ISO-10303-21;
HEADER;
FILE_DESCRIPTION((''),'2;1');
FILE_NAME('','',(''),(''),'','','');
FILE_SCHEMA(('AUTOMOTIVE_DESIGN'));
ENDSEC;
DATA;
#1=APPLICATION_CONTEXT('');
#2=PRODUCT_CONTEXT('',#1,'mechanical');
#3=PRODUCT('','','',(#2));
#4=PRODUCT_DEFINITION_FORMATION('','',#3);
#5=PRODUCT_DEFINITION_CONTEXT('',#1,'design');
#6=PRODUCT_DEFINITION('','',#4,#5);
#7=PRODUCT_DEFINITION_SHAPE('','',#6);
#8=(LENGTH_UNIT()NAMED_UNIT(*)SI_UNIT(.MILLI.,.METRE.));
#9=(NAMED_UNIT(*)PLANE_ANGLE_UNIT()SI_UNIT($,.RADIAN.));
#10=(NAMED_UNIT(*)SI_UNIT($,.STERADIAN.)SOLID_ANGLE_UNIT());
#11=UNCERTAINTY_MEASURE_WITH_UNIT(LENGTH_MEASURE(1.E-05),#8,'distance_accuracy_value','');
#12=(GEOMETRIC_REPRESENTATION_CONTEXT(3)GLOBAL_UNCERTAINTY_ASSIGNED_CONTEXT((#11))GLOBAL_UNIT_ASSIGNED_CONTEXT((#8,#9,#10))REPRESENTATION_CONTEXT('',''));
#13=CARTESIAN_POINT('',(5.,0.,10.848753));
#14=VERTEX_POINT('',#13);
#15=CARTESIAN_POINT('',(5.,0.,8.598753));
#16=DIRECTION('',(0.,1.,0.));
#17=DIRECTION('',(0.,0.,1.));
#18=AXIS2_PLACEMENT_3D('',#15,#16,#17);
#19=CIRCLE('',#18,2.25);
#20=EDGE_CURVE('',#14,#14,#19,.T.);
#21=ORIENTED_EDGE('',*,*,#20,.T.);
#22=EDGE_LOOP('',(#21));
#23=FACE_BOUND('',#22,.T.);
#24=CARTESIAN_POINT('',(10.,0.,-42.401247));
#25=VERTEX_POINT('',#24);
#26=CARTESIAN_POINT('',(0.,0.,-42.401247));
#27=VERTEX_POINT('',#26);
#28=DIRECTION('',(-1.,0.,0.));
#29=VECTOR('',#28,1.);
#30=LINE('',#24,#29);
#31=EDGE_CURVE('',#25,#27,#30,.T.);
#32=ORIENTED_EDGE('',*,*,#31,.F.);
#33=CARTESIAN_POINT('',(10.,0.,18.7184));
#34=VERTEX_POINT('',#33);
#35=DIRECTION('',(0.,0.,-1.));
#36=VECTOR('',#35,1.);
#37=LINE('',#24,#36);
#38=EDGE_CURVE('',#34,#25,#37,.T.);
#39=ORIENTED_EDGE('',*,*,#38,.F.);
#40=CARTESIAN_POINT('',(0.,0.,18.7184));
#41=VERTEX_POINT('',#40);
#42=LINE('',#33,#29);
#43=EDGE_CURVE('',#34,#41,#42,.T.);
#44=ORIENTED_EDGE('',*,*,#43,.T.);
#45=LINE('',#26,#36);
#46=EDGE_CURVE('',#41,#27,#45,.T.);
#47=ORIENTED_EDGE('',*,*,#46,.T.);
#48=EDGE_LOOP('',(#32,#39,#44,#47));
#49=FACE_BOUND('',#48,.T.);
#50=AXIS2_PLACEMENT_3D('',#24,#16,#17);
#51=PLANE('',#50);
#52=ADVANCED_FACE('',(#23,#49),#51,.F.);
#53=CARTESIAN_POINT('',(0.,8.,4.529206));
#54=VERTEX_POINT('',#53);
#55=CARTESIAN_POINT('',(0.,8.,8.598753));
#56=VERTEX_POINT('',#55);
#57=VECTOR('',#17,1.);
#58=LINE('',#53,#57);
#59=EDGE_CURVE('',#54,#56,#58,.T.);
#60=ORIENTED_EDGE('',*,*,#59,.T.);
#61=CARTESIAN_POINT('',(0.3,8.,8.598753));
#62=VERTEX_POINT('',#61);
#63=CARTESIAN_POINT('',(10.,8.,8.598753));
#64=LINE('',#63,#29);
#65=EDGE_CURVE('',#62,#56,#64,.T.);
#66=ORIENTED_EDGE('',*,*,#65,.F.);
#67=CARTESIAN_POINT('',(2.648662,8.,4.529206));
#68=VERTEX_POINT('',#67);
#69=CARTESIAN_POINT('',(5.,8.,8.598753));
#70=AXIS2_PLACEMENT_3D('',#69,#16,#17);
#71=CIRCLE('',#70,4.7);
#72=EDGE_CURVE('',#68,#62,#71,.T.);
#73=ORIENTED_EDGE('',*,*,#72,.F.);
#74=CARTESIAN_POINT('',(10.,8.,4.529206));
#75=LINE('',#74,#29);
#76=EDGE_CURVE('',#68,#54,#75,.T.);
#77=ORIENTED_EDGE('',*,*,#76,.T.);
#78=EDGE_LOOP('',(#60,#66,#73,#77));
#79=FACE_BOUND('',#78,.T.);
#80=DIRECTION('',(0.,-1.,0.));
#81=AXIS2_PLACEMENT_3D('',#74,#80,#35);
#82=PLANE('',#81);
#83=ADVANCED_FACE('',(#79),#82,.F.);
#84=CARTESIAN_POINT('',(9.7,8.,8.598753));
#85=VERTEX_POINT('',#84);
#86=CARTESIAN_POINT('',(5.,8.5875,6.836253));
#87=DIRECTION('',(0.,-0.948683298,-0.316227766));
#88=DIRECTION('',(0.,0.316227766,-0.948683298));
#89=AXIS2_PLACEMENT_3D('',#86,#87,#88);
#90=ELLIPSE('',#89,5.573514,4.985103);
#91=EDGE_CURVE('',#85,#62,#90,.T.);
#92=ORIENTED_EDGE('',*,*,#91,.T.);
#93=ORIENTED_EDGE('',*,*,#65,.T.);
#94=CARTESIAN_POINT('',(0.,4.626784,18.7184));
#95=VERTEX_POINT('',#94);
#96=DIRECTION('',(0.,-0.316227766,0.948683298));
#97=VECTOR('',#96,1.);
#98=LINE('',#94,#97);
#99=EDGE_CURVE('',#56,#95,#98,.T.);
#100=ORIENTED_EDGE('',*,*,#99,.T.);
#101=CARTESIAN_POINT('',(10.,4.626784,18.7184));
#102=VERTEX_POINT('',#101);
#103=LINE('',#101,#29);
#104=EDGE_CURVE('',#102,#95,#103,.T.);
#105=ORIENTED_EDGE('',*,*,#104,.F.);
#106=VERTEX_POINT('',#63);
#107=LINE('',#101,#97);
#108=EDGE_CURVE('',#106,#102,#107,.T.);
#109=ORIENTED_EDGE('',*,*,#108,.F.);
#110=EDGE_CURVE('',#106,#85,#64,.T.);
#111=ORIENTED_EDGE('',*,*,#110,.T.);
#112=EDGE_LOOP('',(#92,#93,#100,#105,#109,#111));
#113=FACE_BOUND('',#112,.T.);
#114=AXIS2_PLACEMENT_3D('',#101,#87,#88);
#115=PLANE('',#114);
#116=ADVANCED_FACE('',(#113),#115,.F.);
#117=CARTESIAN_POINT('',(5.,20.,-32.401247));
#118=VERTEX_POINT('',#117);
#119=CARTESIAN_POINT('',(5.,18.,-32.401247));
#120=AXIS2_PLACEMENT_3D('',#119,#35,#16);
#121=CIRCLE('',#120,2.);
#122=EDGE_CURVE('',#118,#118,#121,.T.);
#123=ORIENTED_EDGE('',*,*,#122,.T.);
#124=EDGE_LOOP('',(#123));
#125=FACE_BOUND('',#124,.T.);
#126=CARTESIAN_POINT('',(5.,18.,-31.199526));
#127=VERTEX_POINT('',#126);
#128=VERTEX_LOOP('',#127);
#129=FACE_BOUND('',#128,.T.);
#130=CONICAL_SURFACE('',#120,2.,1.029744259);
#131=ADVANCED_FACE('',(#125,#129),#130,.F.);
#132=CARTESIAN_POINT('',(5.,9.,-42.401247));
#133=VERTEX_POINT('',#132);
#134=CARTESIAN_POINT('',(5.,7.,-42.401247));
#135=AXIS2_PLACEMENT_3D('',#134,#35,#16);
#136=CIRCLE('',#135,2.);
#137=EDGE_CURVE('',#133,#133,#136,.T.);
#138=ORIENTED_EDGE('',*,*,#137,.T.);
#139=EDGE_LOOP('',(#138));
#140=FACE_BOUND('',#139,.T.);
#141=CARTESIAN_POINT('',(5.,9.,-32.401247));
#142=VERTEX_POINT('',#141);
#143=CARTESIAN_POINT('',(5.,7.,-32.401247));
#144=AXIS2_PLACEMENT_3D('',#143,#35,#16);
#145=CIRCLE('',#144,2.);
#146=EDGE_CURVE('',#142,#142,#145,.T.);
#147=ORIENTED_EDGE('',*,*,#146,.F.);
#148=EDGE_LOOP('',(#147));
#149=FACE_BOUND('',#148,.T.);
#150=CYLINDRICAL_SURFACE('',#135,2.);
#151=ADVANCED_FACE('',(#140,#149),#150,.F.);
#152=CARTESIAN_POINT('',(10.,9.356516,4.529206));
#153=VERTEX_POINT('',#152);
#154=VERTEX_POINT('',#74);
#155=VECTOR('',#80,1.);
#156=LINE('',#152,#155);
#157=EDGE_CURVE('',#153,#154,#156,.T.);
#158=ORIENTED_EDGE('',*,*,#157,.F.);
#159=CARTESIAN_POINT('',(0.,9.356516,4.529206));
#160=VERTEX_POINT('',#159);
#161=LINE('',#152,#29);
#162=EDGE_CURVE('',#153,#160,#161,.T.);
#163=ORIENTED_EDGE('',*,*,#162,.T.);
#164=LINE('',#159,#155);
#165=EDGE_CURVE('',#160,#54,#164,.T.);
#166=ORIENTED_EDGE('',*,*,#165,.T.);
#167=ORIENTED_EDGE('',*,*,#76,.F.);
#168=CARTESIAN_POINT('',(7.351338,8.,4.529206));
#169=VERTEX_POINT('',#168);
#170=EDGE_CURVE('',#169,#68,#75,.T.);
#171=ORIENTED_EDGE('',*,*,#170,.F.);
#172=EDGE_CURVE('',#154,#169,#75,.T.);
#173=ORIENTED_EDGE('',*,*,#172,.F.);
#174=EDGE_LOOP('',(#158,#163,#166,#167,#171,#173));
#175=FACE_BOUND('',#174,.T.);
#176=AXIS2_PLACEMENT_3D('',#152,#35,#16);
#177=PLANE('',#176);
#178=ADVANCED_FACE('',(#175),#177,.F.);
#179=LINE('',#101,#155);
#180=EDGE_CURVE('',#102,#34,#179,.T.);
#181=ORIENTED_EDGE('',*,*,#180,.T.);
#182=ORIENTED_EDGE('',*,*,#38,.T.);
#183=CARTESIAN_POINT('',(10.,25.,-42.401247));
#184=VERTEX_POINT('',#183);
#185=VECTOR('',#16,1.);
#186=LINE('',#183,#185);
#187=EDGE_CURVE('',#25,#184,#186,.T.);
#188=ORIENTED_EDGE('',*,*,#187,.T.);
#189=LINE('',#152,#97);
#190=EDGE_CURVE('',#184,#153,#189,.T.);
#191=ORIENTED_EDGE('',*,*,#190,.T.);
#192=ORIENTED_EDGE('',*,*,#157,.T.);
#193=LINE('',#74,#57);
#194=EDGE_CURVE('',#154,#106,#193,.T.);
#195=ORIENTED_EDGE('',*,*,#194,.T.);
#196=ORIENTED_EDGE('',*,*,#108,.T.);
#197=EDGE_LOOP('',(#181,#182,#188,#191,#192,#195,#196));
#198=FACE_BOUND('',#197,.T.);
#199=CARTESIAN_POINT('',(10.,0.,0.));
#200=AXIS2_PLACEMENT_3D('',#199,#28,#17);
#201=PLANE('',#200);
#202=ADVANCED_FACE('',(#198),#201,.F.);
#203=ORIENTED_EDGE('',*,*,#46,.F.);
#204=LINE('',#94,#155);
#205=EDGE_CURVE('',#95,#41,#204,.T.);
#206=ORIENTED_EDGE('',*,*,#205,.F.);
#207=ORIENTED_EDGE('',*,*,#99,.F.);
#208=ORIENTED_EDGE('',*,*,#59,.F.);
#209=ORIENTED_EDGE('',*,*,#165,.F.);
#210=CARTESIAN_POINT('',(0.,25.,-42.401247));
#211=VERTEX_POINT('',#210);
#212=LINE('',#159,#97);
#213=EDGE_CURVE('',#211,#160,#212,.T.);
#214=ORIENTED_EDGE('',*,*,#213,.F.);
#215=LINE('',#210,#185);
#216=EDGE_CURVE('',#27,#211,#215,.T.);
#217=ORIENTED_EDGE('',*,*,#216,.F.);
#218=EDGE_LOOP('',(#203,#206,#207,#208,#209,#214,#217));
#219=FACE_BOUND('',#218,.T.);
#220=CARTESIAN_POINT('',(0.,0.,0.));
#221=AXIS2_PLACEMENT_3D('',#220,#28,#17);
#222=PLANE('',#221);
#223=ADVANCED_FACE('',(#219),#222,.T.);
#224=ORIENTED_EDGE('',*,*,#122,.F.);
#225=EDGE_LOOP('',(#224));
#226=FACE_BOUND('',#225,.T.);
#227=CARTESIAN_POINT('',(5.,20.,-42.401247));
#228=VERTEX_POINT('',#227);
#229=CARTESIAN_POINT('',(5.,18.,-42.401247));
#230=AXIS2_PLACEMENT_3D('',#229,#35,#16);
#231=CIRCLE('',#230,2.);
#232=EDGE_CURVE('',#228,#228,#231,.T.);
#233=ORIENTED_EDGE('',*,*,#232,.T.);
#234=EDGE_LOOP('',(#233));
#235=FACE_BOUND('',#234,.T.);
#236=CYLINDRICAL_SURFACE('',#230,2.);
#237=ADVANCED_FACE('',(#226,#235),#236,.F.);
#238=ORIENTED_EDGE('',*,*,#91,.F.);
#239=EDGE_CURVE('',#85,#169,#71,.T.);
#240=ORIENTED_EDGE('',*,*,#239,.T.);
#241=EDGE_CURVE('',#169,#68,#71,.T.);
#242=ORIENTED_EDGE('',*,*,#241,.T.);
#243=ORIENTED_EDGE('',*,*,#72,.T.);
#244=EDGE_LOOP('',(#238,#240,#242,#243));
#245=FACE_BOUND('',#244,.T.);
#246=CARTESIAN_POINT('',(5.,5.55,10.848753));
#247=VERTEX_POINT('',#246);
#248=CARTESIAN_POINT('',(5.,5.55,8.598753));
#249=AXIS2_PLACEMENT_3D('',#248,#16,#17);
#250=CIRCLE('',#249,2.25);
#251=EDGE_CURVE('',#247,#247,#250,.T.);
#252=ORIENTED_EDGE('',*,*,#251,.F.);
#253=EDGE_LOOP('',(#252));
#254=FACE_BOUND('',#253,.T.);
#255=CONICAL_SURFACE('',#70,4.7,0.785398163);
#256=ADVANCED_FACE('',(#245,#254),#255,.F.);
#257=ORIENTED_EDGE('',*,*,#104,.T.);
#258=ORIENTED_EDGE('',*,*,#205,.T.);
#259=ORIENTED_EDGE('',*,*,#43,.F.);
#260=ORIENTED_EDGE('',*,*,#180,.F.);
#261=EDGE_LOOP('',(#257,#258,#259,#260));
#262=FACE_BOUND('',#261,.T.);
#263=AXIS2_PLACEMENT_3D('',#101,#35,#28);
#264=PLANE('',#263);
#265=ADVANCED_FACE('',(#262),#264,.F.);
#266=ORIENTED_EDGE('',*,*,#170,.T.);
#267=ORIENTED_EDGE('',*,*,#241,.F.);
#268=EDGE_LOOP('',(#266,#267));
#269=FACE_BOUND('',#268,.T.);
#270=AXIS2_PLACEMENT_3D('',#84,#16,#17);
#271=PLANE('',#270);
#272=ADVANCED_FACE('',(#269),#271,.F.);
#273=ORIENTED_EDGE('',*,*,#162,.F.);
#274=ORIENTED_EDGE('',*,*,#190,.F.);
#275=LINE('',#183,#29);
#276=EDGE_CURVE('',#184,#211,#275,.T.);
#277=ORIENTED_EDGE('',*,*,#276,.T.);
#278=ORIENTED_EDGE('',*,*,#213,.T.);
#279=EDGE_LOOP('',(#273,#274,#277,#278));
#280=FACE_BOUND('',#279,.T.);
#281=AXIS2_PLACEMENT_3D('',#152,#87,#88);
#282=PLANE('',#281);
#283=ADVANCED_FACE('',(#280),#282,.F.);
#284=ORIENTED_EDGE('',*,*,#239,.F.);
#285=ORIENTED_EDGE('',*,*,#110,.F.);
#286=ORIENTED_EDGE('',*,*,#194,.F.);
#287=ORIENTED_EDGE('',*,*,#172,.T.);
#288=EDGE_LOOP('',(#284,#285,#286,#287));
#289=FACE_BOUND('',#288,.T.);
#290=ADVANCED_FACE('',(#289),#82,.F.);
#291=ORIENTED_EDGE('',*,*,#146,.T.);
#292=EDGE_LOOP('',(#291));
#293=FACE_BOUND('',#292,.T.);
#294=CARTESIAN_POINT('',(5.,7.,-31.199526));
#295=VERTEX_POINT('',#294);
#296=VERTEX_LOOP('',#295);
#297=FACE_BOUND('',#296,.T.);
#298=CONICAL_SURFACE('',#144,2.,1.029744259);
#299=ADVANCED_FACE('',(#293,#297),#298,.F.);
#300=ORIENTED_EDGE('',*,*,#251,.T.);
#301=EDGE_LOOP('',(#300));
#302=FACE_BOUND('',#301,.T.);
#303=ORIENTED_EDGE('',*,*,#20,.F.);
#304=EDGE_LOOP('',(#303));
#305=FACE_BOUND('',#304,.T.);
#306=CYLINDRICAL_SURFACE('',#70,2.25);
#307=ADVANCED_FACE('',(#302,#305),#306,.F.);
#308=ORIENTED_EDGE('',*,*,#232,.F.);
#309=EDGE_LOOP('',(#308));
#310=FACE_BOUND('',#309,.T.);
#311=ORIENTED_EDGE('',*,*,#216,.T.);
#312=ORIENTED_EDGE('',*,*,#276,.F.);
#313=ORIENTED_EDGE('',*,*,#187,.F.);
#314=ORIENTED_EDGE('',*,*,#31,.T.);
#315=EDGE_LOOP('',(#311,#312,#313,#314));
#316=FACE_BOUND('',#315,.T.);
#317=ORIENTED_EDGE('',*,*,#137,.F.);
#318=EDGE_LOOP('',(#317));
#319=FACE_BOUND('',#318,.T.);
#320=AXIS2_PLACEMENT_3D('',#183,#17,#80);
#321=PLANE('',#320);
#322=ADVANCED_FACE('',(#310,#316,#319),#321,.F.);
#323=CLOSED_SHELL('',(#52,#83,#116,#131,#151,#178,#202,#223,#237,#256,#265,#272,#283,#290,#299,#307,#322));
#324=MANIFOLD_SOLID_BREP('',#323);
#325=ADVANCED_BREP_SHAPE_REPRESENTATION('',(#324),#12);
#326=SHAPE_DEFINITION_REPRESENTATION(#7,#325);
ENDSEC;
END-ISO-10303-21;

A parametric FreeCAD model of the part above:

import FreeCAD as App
import Part
import Sketcher
Q = App.Units.Quantity

doc = App.newDocument("Part")
body = doc.addObject("PartDesign::Body", "Body")

sketch1 = doc.addObject("Sketcher::SketchObject", "Sketch")
body.addObject(sketch1)
sketch1.AttachmentSupport = (doc.YZ_Plane, [""])
sketch1.MapMode = "FlatFace"
sketch1.addGeometry(Part.LineSegment(App.Vector(8, 8.6, 0), App.Vector(4.6, 18.7, 0)), False)
sketch1.addGeometry(Part.LineSegment(App.Vector(4.6, 18.7, 0), App.Vector(0, 18.7, 0)), False)
sketch1.addGeometry(Part.LineSegment(App.Vector(0, 18.7, 0), App.Vector(0, -42.4, 0)), False)
sketch1.addGeometry(Part.LineSegment(App.Vector(0, -42.4, 0), App.Vector(25, -42.4, 0)), False)
sketch1.addGeometry(Part.LineSegment(App.Vector(25, -42.4, 0), App.Vector(9.4, 4.5, 0)), False)
sketch1.addGeometry(Part.LineSegment(App.Vector(9.4, 4.5, 0), App.Vector(8, 4.5, 0)), False)
sketch1.addGeometry(Part.LineSegment(App.Vector(8, 4.5, 0), App.Vector(8, 8.6, 0)), False)
sketch1.addConstraint(Sketcher.Constraint("Coincident", 0, 2, 1, 1))
sketch1.addConstraint(Sketcher.Constraint("Coincident", 1, 2, 2, 1))
sketch1.addConstraint(Sketcher.Constraint("Coincident", 2, 2, 3, 1))
sketch1.addConstraint(Sketcher.Constraint("Coincident", 3, 2, 4, 1))
sketch1.addConstraint(Sketcher.Constraint("Coincident", 4, 2, 5, 1))
sketch1.addConstraint(Sketcher.Constraint("Coincident", 5, 2, 6, 1))
sketch1.addConstraint(Sketcher.Constraint("Coincident", 6, 2, 0, 1))
sketch1.addConstraint(Sketcher.Constraint("Horizontal", 1))
sketch1.addConstraint(Sketcher.Constraint("Vertical", 2))
sketch1.addConstraint(Sketcher.Constraint("Horizontal", 3))
sketch1.addConstraint(Sketcher.Constraint("Horizontal", 5))
sketch1.addConstraint(Sketcher.Constraint("Vertical", 6))
sketch1.addConstraint(Sketcher.Constraint("PointOnObject", 1, 2, -2))
sketch1.addConstraint(Sketcher.Constraint("Parallel", 0, 4))
sketch1.addConstraint(Sketcher.Constraint("DistanceX", 3, 1, 3, 2, 25.0))
sketch1.addConstraint(Sketcher.Constraint("DistanceX", -1, 1, 5, 2, 8.0))
sketch1.addConstraint(Sketcher.Constraint("DistanceY", 2, 2, 6, 2, 51.0))
sketch1.addConstraint(Sketcher.Constraint("DistanceY", -1, 1, 0, 2, 18.7184))
sketch1.addConstraint(Sketcher.Constraint("Distance", 4, 49.469041))
sketch1.addConstraint(Sketcher.Constraint("DistanceX", 1, 2, 1, 1, 4.626784))
sketch1.addConstraint(Sketcher.Constraint("DistanceX", 5, 2, 5, 1, 1.356516))
pad1 = doc.addObject("PartDesign::Pad", "Pad")
body.addObject(pad1)
pad1.Profile = sketch1
pad1.Length = 10

sketch2 = doc.addObject("Sketcher::SketchObject", "Sketch001")
body.addObject(sketch2)
sketch2.AttachmentSupport = (doc.YZ_Plane, [""])
sketch2.MapMode = "FlatFace"
sketch2.AttachmentOffset = App.Placement(App.Vector(0, 0, 5), App.Rotation())
sketch2.addGeometry(Part.LineSegment(App.Vector(-3.4, 8.6, 0), App.Vector(8, 8.6, 0)), False)
sketch2.addGeometry(Part.LineSegment(App.Vector(8, 8.6, 0), App.Vector(8, 13.3, 0)), False)
sketch2.addGeometry(Part.LineSegment(App.Vector(8, 13.3, 0), App.Vector(5.5, 10.8, 0)), False)
sketch2.addGeometry(Part.LineSegment(App.Vector(5.5, 10.8, 0), App.Vector(-2, 10.8, 0)), False)
sketch2.addGeometry(Part.LineSegment(App.Vector(-2, 10.8, 0), App.Vector(-3.4, 8.6, 0)), False)
sketch2.addGeometry(Part.LineSegment(App.Vector(8, 8.6, 0), App.Vector(-3.4, 8.6, 0)), True)
sketch2.addConstraint(Sketcher.Constraint("Coincident", 0, 2, 1, 1))
sketch2.addConstraint(Sketcher.Constraint("Coincident", 1, 2, 2, 1))
sketch2.addConstraint(Sketcher.Constraint("Coincident", 2, 2, 3, 1))
sketch2.addConstraint(Sketcher.Constraint("Coincident", 3, 2, 4, 1))
sketch2.addConstraint(Sketcher.Constraint("Coincident", 4, 2, 0, 1))
sketch2.addConstraint(Sketcher.Constraint("Horizontal", 0))
sketch2.addConstraint(Sketcher.Constraint("Vertical", 1))
sketch2.addConstraint(Sketcher.Constraint("Horizontal", 3))
sketch2.addConstraint(Sketcher.Constraint("Horizontal", 5))
sketch2.addConstraint(Sketcher.Constraint("Coincident", 5, 1, 0, 2))
sketch2.addConstraint(Sketcher.Constraint("Equal", 0, 5))
sketch2.addConstraint(Sketcher.Constraint("Angle", 2, Q("-135 deg")))
sketch2.addConstraint(Sketcher.Constraint("Angle", 4, Q("-121 deg")))
sketch2.addConstraint(Sketcher.Constraint("DistanceY", 1, 1, 1, 2, 4.7))
sketch2.addConstraint(Sketcher.Constraint("DistanceX", -1, 1, 0, 2, 8.0))
sketch2.addConstraint(Sketcher.Constraint("DistanceX", 3, 2, -1, 1, 2.0))
sketch2.addConstraint(Sketcher.Constraint("DistanceX", 3, 2, 3, 1, 7.55))
sketch2.addConstraint(Sketcher.Constraint("DistanceY", -1, 1, 0, 2, 8.598753))
groove = doc.addObject("PartDesign::Groove", "Groove")
body.addObject(groove)
groove.Profile = sketch2
groove.ReferenceAxis = (sketch2, ["Axis0"])
groove.Angle = 360

sketch3 = doc.addObject("Sketcher::SketchObject", "Sketch002")
body.addObject(sketch3)
sketch3.AttachmentSupport = (doc.XY_Plane, [""])
sketch3.MapMode = "FlatFace"
sketch3.AttachmentOffset = App.Placement(App.Vector(0, 0, -42.401247), App.Rotation())
sketch3.addGeometry(Part.Circle(App.Vector(5, 18, 0), App.Vector(0, 0, 1), 2), False)
sketch3.addGeometry(Part.Circle(App.Vector(5, 7, 0), App.Vector(0, 0, 1), 2), False)
sketch3.addConstraint(Sketcher.Constraint("Equal", 0, 1))
sketch3.addConstraint(Sketcher.Constraint("Vertical", 0, 3, 1, 3))
sketch3.addConstraint(Sketcher.Constraint("Diameter", 0, 4.0))
sketch3.addConstraint(Sketcher.Constraint("DistanceX", -1, 1, 0, 3, 5.0))
sketch3.addConstraint(Sketcher.Constraint("DistanceY", -1, 1, 0, 3, 18.0))
sketch3.addConstraint(Sketcher.Constraint("DistanceY", -1, 1, 1, 3, 7.0))
doc.recompute()
hole = doc.addObject("PartDesign::Hole", "Hole")
body.addObject(hole)
hole.Profile = sketch3
hole.ThreadType = "None"
hole.Diameter = 4
hole.DepthType = "Dimension"
hole.Depth = 10
hole.DrillPoint = "Angled"
hole.DrillPointAngle = 118
hole.Reversed = True

doc.recompute()
